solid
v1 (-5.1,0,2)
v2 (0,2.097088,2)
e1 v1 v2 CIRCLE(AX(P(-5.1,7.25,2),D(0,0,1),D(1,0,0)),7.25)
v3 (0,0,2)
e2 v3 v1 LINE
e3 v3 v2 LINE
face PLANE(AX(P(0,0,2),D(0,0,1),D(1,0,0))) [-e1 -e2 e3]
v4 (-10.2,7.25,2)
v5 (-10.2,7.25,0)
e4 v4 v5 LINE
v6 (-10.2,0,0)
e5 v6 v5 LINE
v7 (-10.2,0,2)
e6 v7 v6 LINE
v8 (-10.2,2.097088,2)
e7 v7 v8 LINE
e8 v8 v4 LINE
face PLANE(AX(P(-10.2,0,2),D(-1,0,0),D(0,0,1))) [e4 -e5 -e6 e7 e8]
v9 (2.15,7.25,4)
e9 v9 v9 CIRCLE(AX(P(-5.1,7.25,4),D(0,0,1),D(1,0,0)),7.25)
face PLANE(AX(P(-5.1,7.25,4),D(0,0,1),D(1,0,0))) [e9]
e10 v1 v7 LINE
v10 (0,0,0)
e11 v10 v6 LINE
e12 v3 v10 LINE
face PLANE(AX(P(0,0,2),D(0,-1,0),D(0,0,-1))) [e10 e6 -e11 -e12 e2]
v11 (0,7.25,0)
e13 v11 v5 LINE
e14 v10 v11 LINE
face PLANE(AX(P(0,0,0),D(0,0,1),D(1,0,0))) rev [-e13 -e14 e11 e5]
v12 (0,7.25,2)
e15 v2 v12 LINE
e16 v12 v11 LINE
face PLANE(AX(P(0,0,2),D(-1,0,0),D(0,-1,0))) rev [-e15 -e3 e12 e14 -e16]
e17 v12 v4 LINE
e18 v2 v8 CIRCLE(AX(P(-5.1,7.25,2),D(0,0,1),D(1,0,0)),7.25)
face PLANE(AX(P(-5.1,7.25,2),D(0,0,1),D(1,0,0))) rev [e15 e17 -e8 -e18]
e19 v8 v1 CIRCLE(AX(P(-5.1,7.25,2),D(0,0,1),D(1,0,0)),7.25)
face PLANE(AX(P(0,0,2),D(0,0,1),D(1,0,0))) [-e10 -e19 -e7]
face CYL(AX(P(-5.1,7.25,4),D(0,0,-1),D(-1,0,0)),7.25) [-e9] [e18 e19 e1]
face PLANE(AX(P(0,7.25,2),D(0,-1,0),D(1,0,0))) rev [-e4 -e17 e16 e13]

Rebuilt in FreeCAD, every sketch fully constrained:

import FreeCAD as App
import Part
import Sketcher
from FreeCAD import Vector
Q = App.Units.Quantity


def add_polygon(sketch, points):
    """Adds a closed chain of lines whose ends are joined by coincident constraints."""
    first, n = sketch.GeometryCount, len(points)
    for a, b in zip(points, points[1:] + points[:1]):
        sketch.addGeometry(Part.LineSegment(App.Vector(*a, 0), App.Vector(*b, 0)), False)
    for i in range(n):
        sketch.addConstraint(Sketcher.Constraint("Coincident", first + i, 2, first + (i + 1) % n, 1))

doc = App.newDocument("Part")
body = doc.addObject("PartDesign::Body", "Body")

sketch1 = body.newObject("Sketcher::SketchObject", "Sketch")
sketch1.AttachmentSupport = (doc.getObject("XY_Plane"), [""])
sketch1.MapMode = "FlatFace"
add_polygon(sketch1, [(-10, 7), (-10, 0), (0, 0), (0, 7)])
sketch1.addConstraint([
    Sketcher.Constraint("Vertical", 0),
    Sketcher.Constraint("Horizontal", 1),
    Sketcher.Constraint("Vertical", 2),
    Sketcher.Constraint("Horizontal", 3),
    Sketcher.Constraint("Coincident", 1, 2, -1, 1),
    Sketcher.Constraint("DistanceX", 1, 1, 1, 2, Q("10.2 mm")),
    Sketcher.Constraint("DistanceY", 0, 2, 0, 1, Q("7.25 mm")),
])
pad1 = body.newObject("PartDesign::Pad", "Pad")
pad1.Profile = sketch1
pad1.Length = 2

sketch2 = body.newObject("Sketcher::SketchObject", "Sketch001")
sketch2.AttachmentSupport = (doc.getObject("XY_Plane"), [""])
sketch2.MapMode = "FlatFace"
sketch2.AttachmentOffset = App.Placement(Vector(0, 0, 2), App.Rotation())
sketch2.addGeometry(Part.Circle(Vector(-5, 7, 0), Vector(0, 0, 1), 7), False)
sketch2.addConstraint([
    Sketcher.Constraint("Diameter", 0, Q("14.5 mm")),
    Sketcher.Constraint("DistanceX", 0, 3, -1, 1, Q("5.1 mm")),
    Sketcher.Constraint("DistanceY", -1, 1, 0, 3, Q("7.25 mm")),
])
pad2 = body.newObject("PartDesign::Pad", "Pad001")
pad2.Profile = sketch2
pad2.Length = 2

doc.recompute()
